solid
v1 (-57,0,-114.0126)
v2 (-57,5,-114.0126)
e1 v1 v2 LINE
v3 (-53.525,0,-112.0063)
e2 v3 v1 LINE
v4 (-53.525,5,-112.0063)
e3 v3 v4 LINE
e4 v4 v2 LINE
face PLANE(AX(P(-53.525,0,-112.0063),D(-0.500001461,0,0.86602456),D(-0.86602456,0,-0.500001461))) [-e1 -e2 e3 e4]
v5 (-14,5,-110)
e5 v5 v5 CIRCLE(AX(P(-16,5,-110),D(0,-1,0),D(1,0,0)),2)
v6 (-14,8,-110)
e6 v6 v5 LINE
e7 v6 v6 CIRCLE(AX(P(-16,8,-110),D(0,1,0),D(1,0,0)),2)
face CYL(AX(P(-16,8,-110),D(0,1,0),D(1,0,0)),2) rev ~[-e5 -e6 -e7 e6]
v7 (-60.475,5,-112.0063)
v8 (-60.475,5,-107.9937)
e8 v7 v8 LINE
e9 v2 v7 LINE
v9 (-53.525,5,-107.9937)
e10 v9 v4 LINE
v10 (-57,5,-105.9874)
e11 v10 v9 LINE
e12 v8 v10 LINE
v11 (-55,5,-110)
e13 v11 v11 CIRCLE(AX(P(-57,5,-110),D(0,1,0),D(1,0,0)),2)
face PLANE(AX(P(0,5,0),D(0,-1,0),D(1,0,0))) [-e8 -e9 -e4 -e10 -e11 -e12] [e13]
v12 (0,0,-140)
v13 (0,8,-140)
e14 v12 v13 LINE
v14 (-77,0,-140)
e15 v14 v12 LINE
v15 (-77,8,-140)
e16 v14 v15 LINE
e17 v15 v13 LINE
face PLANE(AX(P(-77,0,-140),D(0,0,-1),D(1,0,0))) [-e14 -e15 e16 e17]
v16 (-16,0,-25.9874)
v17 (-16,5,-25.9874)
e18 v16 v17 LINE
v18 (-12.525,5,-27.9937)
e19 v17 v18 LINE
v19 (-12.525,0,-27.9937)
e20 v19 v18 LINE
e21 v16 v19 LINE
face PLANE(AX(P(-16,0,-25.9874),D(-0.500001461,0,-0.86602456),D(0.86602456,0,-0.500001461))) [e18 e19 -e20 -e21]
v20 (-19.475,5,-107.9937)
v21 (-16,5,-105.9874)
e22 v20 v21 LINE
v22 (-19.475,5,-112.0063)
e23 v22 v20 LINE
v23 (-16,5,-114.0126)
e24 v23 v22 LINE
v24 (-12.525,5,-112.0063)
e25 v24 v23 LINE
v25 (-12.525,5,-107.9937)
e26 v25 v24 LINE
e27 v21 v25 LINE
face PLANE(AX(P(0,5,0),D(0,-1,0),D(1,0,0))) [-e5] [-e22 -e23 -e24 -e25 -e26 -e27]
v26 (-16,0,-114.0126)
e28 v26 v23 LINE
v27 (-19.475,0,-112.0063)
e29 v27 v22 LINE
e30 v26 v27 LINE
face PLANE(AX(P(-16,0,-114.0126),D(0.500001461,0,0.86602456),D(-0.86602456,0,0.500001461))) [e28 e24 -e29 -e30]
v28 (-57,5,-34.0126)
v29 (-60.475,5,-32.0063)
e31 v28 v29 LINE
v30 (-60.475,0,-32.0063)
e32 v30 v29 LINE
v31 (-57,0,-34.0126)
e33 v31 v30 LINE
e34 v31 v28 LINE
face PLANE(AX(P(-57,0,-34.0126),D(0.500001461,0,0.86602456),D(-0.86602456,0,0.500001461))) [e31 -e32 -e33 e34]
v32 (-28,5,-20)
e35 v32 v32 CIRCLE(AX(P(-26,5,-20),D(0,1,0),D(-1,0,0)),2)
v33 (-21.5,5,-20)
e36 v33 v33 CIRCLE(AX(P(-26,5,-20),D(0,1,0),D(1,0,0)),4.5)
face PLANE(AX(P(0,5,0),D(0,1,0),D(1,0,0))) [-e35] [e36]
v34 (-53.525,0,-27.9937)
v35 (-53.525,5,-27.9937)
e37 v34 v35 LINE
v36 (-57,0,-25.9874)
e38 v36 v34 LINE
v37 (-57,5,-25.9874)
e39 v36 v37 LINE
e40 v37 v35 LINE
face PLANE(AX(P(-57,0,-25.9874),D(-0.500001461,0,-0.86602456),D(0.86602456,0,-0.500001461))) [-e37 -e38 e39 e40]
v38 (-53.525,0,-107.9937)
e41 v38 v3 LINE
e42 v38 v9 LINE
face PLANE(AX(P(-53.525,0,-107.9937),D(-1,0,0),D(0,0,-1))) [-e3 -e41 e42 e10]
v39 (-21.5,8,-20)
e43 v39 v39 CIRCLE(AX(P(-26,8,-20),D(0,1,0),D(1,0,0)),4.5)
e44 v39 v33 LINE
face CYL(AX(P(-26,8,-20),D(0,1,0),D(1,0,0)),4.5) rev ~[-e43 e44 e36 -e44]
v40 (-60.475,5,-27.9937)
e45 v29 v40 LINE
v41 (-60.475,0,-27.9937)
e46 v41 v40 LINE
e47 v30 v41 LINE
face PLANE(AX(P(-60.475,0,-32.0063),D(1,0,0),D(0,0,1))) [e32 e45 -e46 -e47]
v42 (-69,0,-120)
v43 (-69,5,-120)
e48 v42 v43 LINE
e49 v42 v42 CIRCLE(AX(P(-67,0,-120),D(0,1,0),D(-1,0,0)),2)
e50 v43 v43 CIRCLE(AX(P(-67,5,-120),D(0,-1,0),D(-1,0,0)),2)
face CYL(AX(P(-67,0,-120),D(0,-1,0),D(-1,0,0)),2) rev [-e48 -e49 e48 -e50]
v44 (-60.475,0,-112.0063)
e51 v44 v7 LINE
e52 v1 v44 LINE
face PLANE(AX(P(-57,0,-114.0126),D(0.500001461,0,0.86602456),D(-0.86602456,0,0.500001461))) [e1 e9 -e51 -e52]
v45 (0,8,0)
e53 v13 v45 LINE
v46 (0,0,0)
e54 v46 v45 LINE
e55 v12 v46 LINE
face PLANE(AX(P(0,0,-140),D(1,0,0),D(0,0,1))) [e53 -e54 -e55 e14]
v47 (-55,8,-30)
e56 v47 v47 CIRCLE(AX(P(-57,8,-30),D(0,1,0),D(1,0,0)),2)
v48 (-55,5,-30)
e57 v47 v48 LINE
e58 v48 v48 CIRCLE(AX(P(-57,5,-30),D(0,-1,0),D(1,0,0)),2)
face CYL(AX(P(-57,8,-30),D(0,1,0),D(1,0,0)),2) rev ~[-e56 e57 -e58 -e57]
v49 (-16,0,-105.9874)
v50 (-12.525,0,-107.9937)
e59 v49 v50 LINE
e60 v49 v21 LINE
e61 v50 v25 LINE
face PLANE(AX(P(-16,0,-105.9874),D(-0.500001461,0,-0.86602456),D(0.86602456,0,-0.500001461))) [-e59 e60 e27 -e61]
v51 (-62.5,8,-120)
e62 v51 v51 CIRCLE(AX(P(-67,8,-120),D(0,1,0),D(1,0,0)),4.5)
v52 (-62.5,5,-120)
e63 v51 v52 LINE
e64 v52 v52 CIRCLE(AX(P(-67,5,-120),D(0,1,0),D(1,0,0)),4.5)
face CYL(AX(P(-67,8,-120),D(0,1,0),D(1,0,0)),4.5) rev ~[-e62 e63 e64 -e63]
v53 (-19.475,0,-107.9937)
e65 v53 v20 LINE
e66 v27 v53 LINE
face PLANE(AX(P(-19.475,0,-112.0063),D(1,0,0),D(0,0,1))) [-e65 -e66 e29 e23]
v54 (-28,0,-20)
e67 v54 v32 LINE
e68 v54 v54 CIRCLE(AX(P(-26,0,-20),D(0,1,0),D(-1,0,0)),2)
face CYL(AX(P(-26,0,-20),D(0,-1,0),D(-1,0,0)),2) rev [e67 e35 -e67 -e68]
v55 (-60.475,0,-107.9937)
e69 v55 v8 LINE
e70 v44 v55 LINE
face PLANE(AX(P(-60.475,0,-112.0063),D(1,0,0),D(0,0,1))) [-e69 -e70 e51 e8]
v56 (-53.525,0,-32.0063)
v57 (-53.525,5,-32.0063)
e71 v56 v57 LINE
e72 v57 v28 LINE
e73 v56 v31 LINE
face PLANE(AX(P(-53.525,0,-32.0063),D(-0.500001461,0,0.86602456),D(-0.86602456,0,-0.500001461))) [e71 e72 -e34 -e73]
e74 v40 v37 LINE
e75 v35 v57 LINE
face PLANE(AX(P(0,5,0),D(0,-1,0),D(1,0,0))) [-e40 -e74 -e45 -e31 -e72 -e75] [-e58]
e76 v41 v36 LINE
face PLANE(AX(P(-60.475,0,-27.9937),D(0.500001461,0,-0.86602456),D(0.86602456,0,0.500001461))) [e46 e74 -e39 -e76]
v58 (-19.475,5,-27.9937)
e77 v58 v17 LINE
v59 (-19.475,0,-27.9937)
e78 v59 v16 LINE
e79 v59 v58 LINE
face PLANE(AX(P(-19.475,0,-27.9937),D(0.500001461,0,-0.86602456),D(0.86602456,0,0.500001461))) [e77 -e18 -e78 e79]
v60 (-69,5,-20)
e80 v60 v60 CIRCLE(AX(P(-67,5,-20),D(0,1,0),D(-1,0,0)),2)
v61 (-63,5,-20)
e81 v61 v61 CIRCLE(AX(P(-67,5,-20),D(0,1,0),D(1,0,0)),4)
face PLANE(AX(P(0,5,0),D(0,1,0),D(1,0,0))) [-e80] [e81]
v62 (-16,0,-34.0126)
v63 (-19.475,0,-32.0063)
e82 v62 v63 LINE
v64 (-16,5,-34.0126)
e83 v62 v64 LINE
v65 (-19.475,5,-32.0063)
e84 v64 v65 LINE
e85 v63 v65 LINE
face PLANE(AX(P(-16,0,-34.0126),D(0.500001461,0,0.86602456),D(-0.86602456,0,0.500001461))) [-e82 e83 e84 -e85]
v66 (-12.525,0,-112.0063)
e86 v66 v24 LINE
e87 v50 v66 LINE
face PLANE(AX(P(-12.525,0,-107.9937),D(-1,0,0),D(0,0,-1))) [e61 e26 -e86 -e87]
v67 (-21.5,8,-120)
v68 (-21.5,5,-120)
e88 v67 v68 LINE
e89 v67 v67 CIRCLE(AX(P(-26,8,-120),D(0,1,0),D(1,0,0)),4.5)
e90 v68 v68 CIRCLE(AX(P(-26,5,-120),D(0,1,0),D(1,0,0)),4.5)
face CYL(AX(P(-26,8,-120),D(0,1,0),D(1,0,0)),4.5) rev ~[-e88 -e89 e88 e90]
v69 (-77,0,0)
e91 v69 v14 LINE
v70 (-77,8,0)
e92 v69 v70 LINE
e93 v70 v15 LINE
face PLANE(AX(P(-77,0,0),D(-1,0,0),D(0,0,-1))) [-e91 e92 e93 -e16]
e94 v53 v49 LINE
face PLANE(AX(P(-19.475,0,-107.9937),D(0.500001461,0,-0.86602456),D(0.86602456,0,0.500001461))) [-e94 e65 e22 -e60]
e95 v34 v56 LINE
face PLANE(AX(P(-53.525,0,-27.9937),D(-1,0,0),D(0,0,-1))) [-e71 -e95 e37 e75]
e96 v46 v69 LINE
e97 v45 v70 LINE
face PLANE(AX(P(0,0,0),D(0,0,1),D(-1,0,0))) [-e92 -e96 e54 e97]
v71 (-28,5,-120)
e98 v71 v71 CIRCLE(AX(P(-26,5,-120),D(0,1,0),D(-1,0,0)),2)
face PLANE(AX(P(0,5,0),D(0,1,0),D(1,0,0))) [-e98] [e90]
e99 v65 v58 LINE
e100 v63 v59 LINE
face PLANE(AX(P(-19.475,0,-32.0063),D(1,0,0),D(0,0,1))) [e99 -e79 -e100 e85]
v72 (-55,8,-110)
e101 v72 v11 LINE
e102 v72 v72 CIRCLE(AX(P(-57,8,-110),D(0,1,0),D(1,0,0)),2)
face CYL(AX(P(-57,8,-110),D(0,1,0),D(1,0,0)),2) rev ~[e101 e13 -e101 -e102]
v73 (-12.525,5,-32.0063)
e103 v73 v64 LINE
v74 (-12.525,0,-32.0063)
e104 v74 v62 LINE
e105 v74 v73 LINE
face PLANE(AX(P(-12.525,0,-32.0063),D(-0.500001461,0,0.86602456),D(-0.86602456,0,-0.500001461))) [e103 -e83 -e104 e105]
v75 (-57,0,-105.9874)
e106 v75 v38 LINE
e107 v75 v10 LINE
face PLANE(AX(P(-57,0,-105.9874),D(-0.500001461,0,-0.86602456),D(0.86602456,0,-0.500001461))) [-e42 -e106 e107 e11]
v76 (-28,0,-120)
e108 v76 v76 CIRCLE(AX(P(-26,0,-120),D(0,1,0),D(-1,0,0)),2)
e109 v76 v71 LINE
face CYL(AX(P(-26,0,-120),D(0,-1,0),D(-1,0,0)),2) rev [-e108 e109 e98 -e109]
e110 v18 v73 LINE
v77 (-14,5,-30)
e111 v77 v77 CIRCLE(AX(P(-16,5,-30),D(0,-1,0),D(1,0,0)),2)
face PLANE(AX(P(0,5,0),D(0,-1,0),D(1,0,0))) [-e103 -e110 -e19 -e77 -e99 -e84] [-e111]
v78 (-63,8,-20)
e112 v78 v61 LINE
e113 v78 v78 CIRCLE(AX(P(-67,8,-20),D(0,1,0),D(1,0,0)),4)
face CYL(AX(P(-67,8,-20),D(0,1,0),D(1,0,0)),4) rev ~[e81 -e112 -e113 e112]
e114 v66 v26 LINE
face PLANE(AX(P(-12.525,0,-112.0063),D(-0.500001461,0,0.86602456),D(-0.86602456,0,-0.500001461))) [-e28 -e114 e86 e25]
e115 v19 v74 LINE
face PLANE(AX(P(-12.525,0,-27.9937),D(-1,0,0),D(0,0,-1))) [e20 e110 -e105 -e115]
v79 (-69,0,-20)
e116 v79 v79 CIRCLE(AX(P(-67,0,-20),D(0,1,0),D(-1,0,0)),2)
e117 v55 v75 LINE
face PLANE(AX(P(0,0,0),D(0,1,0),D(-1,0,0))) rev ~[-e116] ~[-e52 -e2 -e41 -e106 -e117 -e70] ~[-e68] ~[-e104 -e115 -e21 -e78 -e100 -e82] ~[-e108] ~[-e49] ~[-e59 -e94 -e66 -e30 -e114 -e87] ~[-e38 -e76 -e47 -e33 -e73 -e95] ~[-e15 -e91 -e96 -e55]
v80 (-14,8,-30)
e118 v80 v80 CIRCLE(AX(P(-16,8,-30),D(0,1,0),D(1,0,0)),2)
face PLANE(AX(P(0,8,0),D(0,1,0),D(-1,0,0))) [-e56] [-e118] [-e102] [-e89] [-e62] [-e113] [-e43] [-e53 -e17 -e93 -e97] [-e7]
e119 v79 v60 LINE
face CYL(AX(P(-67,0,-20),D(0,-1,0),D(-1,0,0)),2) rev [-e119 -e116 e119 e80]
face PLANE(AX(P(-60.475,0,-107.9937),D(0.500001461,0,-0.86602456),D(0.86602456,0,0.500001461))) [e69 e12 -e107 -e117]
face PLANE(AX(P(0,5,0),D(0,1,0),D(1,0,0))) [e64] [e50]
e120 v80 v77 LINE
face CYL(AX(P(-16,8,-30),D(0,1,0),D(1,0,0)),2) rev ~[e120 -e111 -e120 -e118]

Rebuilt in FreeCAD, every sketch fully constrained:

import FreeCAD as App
import Part
import Sketcher
from FreeCAD import Vector
Q = App.Units.Quantity


def add_polygon(sketch, points):
    """Adds a closed chain of lines whose ends are joined by coincident constraints."""
    first, n = sketch.GeometryCount, len(points)
    for a, b in zip(points, points[1:] + points[:1]):
        sketch.addGeometry(Part.LineSegment(App.Vector(*a, 0), App.Vector(*b, 0)), False)
    for i in range(n):
        sketch.addConstraint(Sketcher.Constraint("Coincident", first + i, 2, first + (i + 1) % n, 1))

doc = App.newDocument("Part")
params = doc.addObject("Spreadsheet::Sheet", "Params")
for row, (alias, value) in enumerate([
    ("sketch1_diameter", "4 mm"),
    ("sketch1_width", "77 mm"),
    ("sketch1_height", "140 mm"),
    ("pad1_length", "8 mm"),
    ("sketch2_diameter", "9 mm"),
    ("sketch2_diameter2", "8 mm"),
    ("sketch2_diameter3", "4 mm"),
    ("pocket1_length", "3 mm"),
    ("sketch3_diameter", "4 mm"),
    ("pocket2_length", "12 mm"),
    ("sketch4_diameter", "4 mm"),
    ("pocket3_length", "5 mm"),
], start=1):
    params.set(f"A{row}", alias)
    params.set(f"B{row}", "=" + value)
    params.setAlias(f"B{row}", alias)

body = doc.addObject("PartDesign::Body", "Body")

sketch1 = body.newObject("Sketcher::SketchObject", "Sketch")
sketch1.AttachmentSupport = (doc.getObject("XZ_Plane"), [""])
sketch1.MapMode = "FlatFace"
add_polygon(sketch1, [(-77, 0), (0, 0), (0, -140), (-77, -140)])
sketch1.addGeometry(Part.Circle(Vector(-26, -120, 0), Vector(0, 0, 1), 2), False)
sketch1.addGeometry(Part.Circle(Vector(-67, -120, 0), Vector(0, 0, 1), 2), False)
sketch1.addGeometry(Part.Circle(Vector(-26, -20, 0), Vector(0, 0, 1), 2), False)
sketch1.addGeometry(Part.Circle(Vector(-67, -20, 0), Vector(0, 0, 1), 2), False)
sketch1.addConstraint([
    Sketcher.Constraint("Horizontal", 0),
    Sketcher.Constraint("Vertical", 1),
    Sketcher.Constraint("Horizontal", 2),
    Sketcher.Constraint("Vertical", 3),
    Sketcher.Constraint("Coincident", 0, 2, -1, 1),
    Sketcher.Constraint("Equal", 4, 5),
    Sketcher.Constraint("Equal", 5, 6),
    Sketcher.Constraint("Equal", 6, 7),
    Sketcher.Constraint("Horizontal", 4, 3, 5, 3),
    Sketcher.Constraint("Horizontal", 6, 3, 7, 3),
    Sketcher.Constraint("Vertical", 4, 3, 6, 3),
    Sketcher.Constraint("Vertical", 5, 3, 7, 3),
    Sketcher.Constraint("Diameter", 4, Q("4 mm")),
    Sketcher.Constraint("DistanceX", 0, 1, 0, 2, Q("77 mm")),
    Sketcher.Constraint("DistanceY", 1, 2, 1, 1, Q("140 mm")),
    Sketcher.Constraint("DistanceX", 4, 3, -1, 1, Q("26 mm")),
    Sketcher.Constraint("DistanceY", 6, 3, -1, 1, Q("20 mm")),
    Sketcher.Constraint("DistanceY", 1, 2, 4, 3, Q("20 mm")),
    Sketcher.Constraint("DistanceX", 2, 2, 5, 3, Q("10 mm")),
])
sketch1.setExpression("Constraints[16]", "Params.sketch1_diameter")
sketch1.setExpression("Constraints[17]", "Params.sketch1_width")
sketch1.setExpression("Constraints[18]", "Params.sketch1_height")
pad1 = body.newObject("PartDesign::Pad", "Pad")
pad1.Profile = sketch1
pad1.setExpression("Length", "Params.pad1_length")
pad1.Reversed = True

sketch2 = body.newObject("Sketcher::SketchObject", "Sketch001")
sketch2.AttachmentSupport = (doc.getObject("XZ_Plane"), [""])
sketch2.MapMode = "FlatFace"
sketch2.AttachmentOffset = App.Placement(Vector(0, 0, -8), App.Rotation())
sketch2.addGeometry([
    Part.Circle(Vector(-67, -120, 0), Vector(0, 0, 1), 4.5),
    Part.Circle(Vector(-67, -20, 0), Vector(0, 0, 1), 4),
    Part.Circle(Vector(-67, -20, 0), Vector(0, 0, 1), 2),
    Part.Circle(Vector(-26, -120, 0), Vector(0, 0, 1), 4.5),
    Part.Circle(Vector(-26, -120, 0), Vector(0, 0, 1), 2),
    Part.Circle(Vector(-26, -20, 0), Vector(0, 0, 1), 4.5),
    Part.Circle(Vector(-26, -20, 0), Vector(0, 0, 1), 2),
], False)
sketch2.addConstraint([
    Sketcher.Constraint("Coincident", 2, 3, 1, 3),
    Sketcher.Constraint("Coincident", 4, 3, 3, 3),
    Sketcher.Constraint("Coincident", 6, 3, 5, 3),
    Sketcher.Constraint("Equal", 0, 3),
    Sketcher.Constraint("Equal", 2, 4),
    Sketcher.Constraint("Equal", 3, 5),
    Sketcher.Constraint("Equal", 4, 6),
    Sketcher.Constraint("Horizontal", 0, 3, 3, 3),
    Sketcher.Constraint("Horizontal", 2, 3, 5, 3),
    Sketcher.Constraint("Vertical", 0, 3, 1, 3),
    Sketcher.Constraint("Vertical", 4, 3, 5, 3),
    Sketcher.Constraint("Diameter", 0, Q("9 mm")),
    Sketcher.Constraint("Diameter", 1, Q("8 mm")),
    Sketcher.Constraint("Diameter", 2, Q("4 mm")),
    Sketcher.Constraint("DistanceX", 0, 3, -1, 1, Q("67 mm")),
    Sketcher.Constraint("DistanceY", 0, 3, -1, 1, Q("120 mm")),
    Sketcher.Constraint("DistanceY", 1, 3, -1, 1, Q("20 mm")),
    Sketcher.Constraint("DistanceX", 3, 3, -1, 1, Q("26 mm")),
])
sketch2.setExpression("Constraints[11]", "Params.sketch2_diameter")
sketch2.setExpression("Constraints[12]", "Params.sketch2_diameter2")
sketch2.setExpression("Constraints[13]", "Params.sketch2_diameter3")
pocket1 = body.newObject("PartDesign::Pocket", "Pocket")
pocket1.Profile = sketch2
pocket1.setExpression("Length", "Params.pocket1_length")
pocket1.Reversed = True

sketch3 = body.newObject("Sketcher::SketchObject", "Sketch002")
sketch3.AttachmentSupport = (doc.getObject("XZ_Plane"), [""])
sketch3.MapMode = "FlatFace"
sketch3.AttachmentOffset = App.Placement(Vector(0, 0, -8), App.Rotation())
sketch3.addGeometry([
    Part.Circle(Vector(-57, -30, 0), Vector(0, 0, 1), 2),
    Part.Circle(Vector(-57, -110, 0), Vector(0, 0, 1), 2),
    Part.Circle(Vector(-16, -30, 0), Vector(0, 0, 1), 2),
    Part.Circle(Vector(-16, -110, 0), Vector(0, 0, 1), 2),
], False)
sketch3.addConstraint([
    Sketcher.Constraint("Equal", 0, 1),
    Sketcher.Constraint("Equal", 1, 2),
    Sketcher.Constraint("Equal", 2, 3),
    Sketcher.Constraint("Horizontal", 0, 3, 2, 3),
    Sketcher.Constraint("Horizontal", 1, 3, 3, 3),
    Sketcher.Constraint("Vertical", 0, 3, 1, 3),
    Sketcher.Constraint("Vertical", 2, 3, 3, 3),
    Sketcher.Constraint("Diameter", 0, Q("4 mm")),
    Sketcher.Constraint("DistanceX", 0, 3, -1, 1, Q("57 mm")),
    Sketcher.Constraint("DistanceY", 0, 3, -1, 1, Q("30 mm")),
    Sketcher.Constraint("DistanceY", 1, 3, -1, 1, Q("110 mm")),
    Sketcher.Constraint("DistanceX", 2, 3, -1, 1, Q("16 mm")),
])
sketch3.setExpression("Constraints[7]", "Params.sketch3_diameter")
pocket2 = body.newObject("PartDesign::Pocket", "Pocket001")
pocket2.Profile = sketch3
pocket2.setExpression("Length", "Params.pocket2_length")
pocket2.Reversed = True

sketch4 = body.newObject("Sketcher::SketchObject", "Sketch003")
sketch4.AttachmentSupport = (doc.getObject("XZ_Plane"), [""])
sketch4.MapMode = "FlatFace"
add_polygon(sketch4, [(-57, -114), (-53.5, -112), (-53.5, -108), (-57, -106), (-60.5, -108), (-60.5, -112)])
add_polygon(sketch4, [(-57, -34), (-53.5, -32), (-53.5, -28), (-57, -26), (-60.5, -28), (-60.5, -32)])
sketch4.addGeometry(Part.Circle(Vector(-57, -30, 0), Vector(0, 0, 1), 2), False)
add_polygon(sketch4, [(-12.5, -108), (-16, -106), (-19.5, -108), (-19.5, -112), (-16, -114), (-12.5, -112)])
sketch4.addGeometry(Part.Circle(Vector(-16, -110, 0), Vector(0, 0, 1), 2), False)
add_polygon(sketch4, [(-16, -34), (-12.5, -32), (-12.5, -28), (-16, -26), (-19.5, -28), (-19.5, -32)])
sketch4.addGeometry(Part.Circle(Vector(-16, -30, 0), Vector(0, 0, 1), 2), False)
sketch4.addConstraint([
    Sketcher.Constraint("Vertical", 1),
    Sketcher.Constraint("Vertical", 4),
    Sketcher.Constraint("Vertical", 7),
    Sketcher.Constraint("Vertical", 10),
    Sketcher.Constraint("Vertical", 15),
    Sketcher.Constraint("Vertical", 18),
    Sketcher.Constraint("Vertical", 21),
    Sketcher.Constraint("Vertical", 24),
    Sketcher.Constraint("Equal", 12, 19),
    Sketcher.Constraint("Equal", 19, 26),
    Sketcher.Constraint("Parallel", 0, 3),
    Sketcher.Constraint("Parallel", 2, 5),
    Sketcher.Constraint("Parallel", 3, 6),
    Sketcher.Constraint("Parallel", 5, 8),
    Sketcher.Constraint("Parallel", 6, 9),
    Sketcher.Constraint("Parallel", 8, 11),
    Sketcher.Constraint("Parallel", 11, 13),
    Sketcher.Constraint("Parallel", 9, 14),
    Sketcher.Constraint("Parallel", 13, 16),
    Sketcher.Constraint("Parallel", 14, 17),
    Sketcher.Constraint("Parallel", 17, 20),
    Sketcher.Constraint("Parallel", 16, 22),
    Sketcher.Constraint("Parallel", 20, 23),
    Sketcher.Constraint("Parallel", 22, 25),
    Sketcher.Constraint("Horizontal", 12, 3, 26, 3),
    Sketcher.Constraint("Horizontal", 1, 2, 3, 2),
    Sketcher.Constraint("Horizontal", 0, 2, 4, 2),
    Sketcher.Constraint("Horizontal", 7, 2, 9, 2),
    Sketcher.Constraint("Horizontal", 6, 2, 10, 2),
    Sketcher.Constraint("Horizontal", 2, 2, 13, 2),
    Sketcher.Constraint("Horizontal", 3, 2, 14, 2),
    Sketcher.Constraint("Horizontal", 4, 2, 15, 2),
    Sketcher.Constraint("Horizontal", 5, 2, 16, 2),
    Sketcher.Constraint("Horizontal", 15, 2, 17, 2),
    Sketcher.Constraint("Horizontal", 10, 2, 20, 2),
    Sketcher.Constraint("Horizontal", 9, 2, 21, 2),
    Sketcher.Constraint("Horizontal", 8, 2, 22, 2),
    Sketcher.Constraint("Horizontal", 21, 2, 23, 2),
    Sketcher.Constraint("Horizontal", 20, 2, 24, 2),
    Sketcher.Constraint("Vertical", 19, 3, 26, 3),
    Sketcher.Constraint("Vertical", 12, 3, 2, 2),
    Sketcher.Constraint("Vertical", 2, 2, 5, 2),
    Sketcher.Constraint("Vertical", 1, 2, 6, 2),
    Sketcher.Constraint("Vertical", 5, 2, 8, 2),
    Sketcher.Constraint("Vertical", 26, 3, 13, 2),
    Sketcher.Constraint("Vertical", 18, 2, 20, 2),
    Sketcher.Constraint("Equal", 4, 7),
    Sketcher.Constraint("Diameter", 12, Q("4 mm")),
    Sketcher.Constraint("Angle", 0, Q("30 deg")),
    Sketcher.Constraint("DistanceX", 3, 2, 1, 2, Q("6.95 mm")),
    Sketcher.Constraint("DistanceX", 12, 3, -1, 1, Q("57 mm")),
    Sketcher.Constraint("DistanceY", 12, 3, -1, 1, Q("30 mm")),
    Sketcher.Constraint("DistanceX", 19, 3, -1, 1, Q("16 mm")),
    Sketcher.Constraint("DistanceY", 19, 3, -1, 1, Q("110 mm")),
    Sketcher.Constraint("DistanceY", 1, 2, 7, 2, Q("80 mm")),
    Sketcher.Constraint("DistanceY", 1, 1, 1, 2, Q("4.0126 mm")),
    Sketcher.Constraint("DistanceY", 0, 2, -1, 1, Q("112.0063 mm")),
])
sketch4.setExpression("Constraints[71]", "Params.sketch4_diameter")
pocket3 = body.newObject("PartDesign::Pocket", "Pocket002")
pocket3.Profile = sketch4
pocket3.setExpression("Length", "Params.pocket3_length")

doc.recompute()
